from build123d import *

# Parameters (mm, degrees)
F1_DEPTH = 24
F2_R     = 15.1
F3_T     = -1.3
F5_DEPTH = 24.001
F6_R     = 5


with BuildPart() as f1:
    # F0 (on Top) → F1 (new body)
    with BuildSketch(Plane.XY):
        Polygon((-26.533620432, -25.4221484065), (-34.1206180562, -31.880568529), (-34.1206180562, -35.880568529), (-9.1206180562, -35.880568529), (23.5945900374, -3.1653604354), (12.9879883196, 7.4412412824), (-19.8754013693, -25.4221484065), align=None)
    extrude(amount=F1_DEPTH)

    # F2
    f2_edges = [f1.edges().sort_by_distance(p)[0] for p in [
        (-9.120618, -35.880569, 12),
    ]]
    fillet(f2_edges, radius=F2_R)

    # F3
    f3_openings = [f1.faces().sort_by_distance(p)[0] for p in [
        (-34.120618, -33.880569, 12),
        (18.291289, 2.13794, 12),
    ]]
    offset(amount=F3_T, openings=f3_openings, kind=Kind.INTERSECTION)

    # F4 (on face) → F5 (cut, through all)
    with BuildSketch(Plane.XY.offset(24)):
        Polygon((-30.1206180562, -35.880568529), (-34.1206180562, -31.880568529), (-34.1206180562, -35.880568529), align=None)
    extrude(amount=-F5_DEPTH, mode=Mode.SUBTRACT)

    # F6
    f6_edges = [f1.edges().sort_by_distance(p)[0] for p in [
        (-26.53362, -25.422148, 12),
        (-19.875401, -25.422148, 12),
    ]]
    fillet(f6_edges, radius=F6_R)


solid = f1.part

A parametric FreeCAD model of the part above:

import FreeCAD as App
import Part
import Sketcher

V = App.Vector
Q = App.Units.Quantity


def edges_at(feature, points):
    """Names of the edges that pass closest to the given points."""
    edges = feature.Shape.Edges
    near = lambda p: min(range(len(edges)), key=lambda i: edges[i].distToShape(Part.Vertex(*p))[0])
    return sorted({f"Edge{near(p) + 1}" for p in points})


def faces_at(feature, points):
    """Names of the faces that lie closest to the given points."""
    faces = feature.Shape.Faces
    near = lambda p: min(range(len(faces)), key=lambda i: faces[i].distToShape(Part.Vertex(*p))[0])
    return sorted({f"Face{near(p) + 1}" for p in points})

doc = App.newDocument("Part")
body = doc.addObject("PartDesign::Body", "Body")

sketch1 = body.newObject("Sketcher::SketchObject", "Sketch")
sketch1.AttachmentSupport = (doc.getObject("XY_Plane"), [""])
sketch1.MapMode = "FlatFace"
sketch1.addGeometry([
    Part.LineSegment(V(-26.5, -25.4, 0), V(-34.1, -31.9, 0)),
    Part.LineSegment(V(-34.1, -31.9, 0), V(-34.1, -35.9, 0)),
    Part.LineSegment(V(-34.1, -35.9, 0), V(-9.1, -35.9, 0)),
    Part.LineSegment(V(-9.1, -35.9, 0), V(23.6, -3.2, 0)),
    Part.LineSegment(V(23.6, -3.2, 0), V(13, 7.4, 0)),
    Part.LineSegment(V(13, 7.4, 0), V(-19.9, -25.4, 0)),
    Part.LineSegment(V(-19.9, -25.4, 0), V(-26.5, -25.4, 0)),
], False)
sketch1.addConstraint([
    Sketcher.Constraint("Coincident", 0, 2, 1, 1),
    Sketcher.Constraint("Coincident", 1, 2, 2, 1),
    Sketcher.Constraint("Coincident", 2, 2, 3, 1),
    Sketcher.Constraint("Coincident", 3, 2, 4, 1),
    Sketcher.Constraint("Coincident", 4, 2, 5, 1),
    Sketcher.Constraint("Coincident", 5, 2, 6, 1),
    Sketcher.Constraint("Coincident", 6, 2, 0, 1),
    Sketcher.Constraint("Vertical", 1),
    Sketcher.Constraint("Horizontal", 2),
    Sketcher.Constraint("Horizontal", 6),
    Sketcher.Constraint("Perpendicular", 3, 4),
    Sketcher.Constraint("Perpendicular", 4, 5),
    Sketcher.Constraint("DistanceX", 2, 1, 2, 2, Q("25 mm")),
    Sketcher.Constraint("DistanceY", 1, 2, 1, 1, Q("4 mm")),
    Sketcher.Constraint("Angle", 3, Q("45 deg")),
    Sketcher.Constraint("Distance", 4, Q("15 mm")),
    Sketcher.Constraint("DistanceX", 6, 2, 6, 1, Q("6.658219 mm")),
    Sketcher.Constraint("DistanceX", 5, 2, -1, 1, Q("19.875401 mm")),
    Sketcher.Constraint("Distance", 0, Q("9.96362 mm")),
    Sketcher.Constraint("Distance", 3, Q("46.266291 mm")),
    Sketcher.Constraint("DistanceY", 0, 2, -1, 1, Q("31.880569 mm")),
])
pad1 = body.newObject("PartDesign::Pad", "Pad")
pad1.Profile = sketch1
pad1.Length = 24
doc.recompute()

fillet = body.newObject("PartDesign::Fillet", "Fillet")
fillet.Base = (pad1, edges_at(pad1, [(-9.121, -35.881, 12)]))
fillet.Radius = 15.1
doc.recompute()

thickness = body.newObject("PartDesign::Thickness", "Thickness")
thickness.Base = (fillet, faces_at(fillet, [(-34.121, -33.881, 12), (18.291, 2.138, 12)]))
thickness.Value = 1.3
thickness.Reversed = True
thickness.Join = "Intersection"

sketch2 = body.newObject("Sketcher::SketchObject", "Sketch001")
sketch2.AttachmentSupport = (doc.getObject("XY_Plane"), [""])
sketch2.MapMode = "FlatFace"
sketch2.AttachmentOffset = App.Placement(V(0, 0, 24), App.Rotation())
sketch2.addGeometry([
    Part.LineSegment(V(-30.1, -35.9, 0), V(-34.1, -31.9, 0)),
    Part.LineSegment(V(-34.1, -31.9, 0), V(-34.1, -35.9, 0)),
    Part.LineSegment(V(-34.1, -35.9, 0), V(-30.1, -35.9, 0)),
], False)
sketch2.addConstraint([
    Sketcher.Constraint("Coincident", 0, 2, 1, 1),
    Sketcher.Constraint("Coincident", 1, 2, 2, 1),
    Sketcher.Constraint("Coincident", 2, 2, 0, 1),
    Sketcher.Constraint("Vertical", 1),
    Sketcher.Constraint("Horizontal", 2),
    Sketcher.Constraint("Equal", 2, 1),
    Sketcher.Constraint("DistanceX", 2, 1, 2, 2, Q("4 mm")),
    Sketcher.Constraint("DistanceX", 0, 2, -1, 1, Q("34.120618 mm")),
    Sketcher.Constraint("DistanceY", 0, 2, -1, 1, Q("31.880569 mm")),
])
pocket1 = body.newObject("PartDesign::Pocket", "Pocket")
pocket1.Profile = sketch2
pocket1.Type = "ThroughAll"
doc.recompute()

fillet2 = body.newObject("PartDesign::Fillet", "Fillet001")
fillet2.Base = (pocket1, edges_at(pocket1, [(-26.534, -25.422, 12), (-19.875, -25.422, 12)]))
fillet2.Radius = 5

doc.recompute()
